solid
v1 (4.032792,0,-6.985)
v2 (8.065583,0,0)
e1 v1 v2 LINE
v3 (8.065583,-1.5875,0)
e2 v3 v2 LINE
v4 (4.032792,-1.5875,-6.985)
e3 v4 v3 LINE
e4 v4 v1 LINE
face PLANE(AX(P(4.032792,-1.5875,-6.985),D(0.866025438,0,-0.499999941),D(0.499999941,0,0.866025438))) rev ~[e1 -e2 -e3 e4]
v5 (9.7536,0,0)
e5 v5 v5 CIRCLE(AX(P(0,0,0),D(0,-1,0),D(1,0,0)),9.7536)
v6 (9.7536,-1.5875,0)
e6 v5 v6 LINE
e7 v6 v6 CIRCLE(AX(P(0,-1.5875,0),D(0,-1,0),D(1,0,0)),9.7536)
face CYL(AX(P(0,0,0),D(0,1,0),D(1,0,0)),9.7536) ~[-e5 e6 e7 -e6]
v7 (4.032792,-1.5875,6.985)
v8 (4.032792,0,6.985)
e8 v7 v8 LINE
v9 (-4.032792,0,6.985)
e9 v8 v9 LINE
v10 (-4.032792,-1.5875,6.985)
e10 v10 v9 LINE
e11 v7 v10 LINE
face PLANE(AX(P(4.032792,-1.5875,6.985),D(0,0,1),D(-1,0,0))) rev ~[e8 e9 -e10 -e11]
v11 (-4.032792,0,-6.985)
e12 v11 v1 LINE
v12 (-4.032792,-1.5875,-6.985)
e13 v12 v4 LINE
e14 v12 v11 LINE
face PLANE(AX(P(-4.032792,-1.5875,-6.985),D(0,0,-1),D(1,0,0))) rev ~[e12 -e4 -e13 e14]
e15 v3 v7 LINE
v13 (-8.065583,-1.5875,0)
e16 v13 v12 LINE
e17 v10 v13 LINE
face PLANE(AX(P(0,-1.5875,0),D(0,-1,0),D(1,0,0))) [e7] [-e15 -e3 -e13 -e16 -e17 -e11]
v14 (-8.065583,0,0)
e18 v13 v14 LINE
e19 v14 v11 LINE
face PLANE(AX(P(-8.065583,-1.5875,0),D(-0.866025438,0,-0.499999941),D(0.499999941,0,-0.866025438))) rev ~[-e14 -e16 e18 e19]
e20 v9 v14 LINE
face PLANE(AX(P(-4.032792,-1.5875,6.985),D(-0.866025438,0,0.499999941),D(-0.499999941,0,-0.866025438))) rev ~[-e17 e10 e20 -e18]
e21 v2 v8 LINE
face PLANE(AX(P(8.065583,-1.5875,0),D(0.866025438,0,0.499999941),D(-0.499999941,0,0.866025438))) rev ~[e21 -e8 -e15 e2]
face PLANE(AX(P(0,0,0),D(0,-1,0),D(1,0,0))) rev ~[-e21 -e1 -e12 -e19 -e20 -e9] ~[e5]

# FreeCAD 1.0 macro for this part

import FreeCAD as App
import Part
import Sketcher
from FreeCAD import Vector
Q = App.Units.Quantity

doc = App.newDocument("Part")
params = doc.addObject("Spreadsheet::Sheet", "Params")
for row, (alias, value) in enumerate([
    ("sketch1_diameter", "0.768 in"),
    ("pad1_length", "0.0625 in"),
], start=1):
    params.set(f"A{row}", alias)
    params.set(f"B{row}", "=" + value)
    params.setAlias(f"B{row}", alias)

body = doc.addObject("PartDesign::Body", "Body")

# Sketch on XZ plane
sketch1 = doc.addObject("Sketcher::SketchObject", "Sketch")
body.addObject(sketch1)
sketch1.AttachmentSupport = (doc.XZ_Plane, [""])
sketch1.MapMode = "FlatFace"
sketch1.addGeometry(Part.Circle(Vector(0, 0, 0), Vector(0, 0, 1), 9.7536), False)
sketch1.addConstraint(Sketcher.Constraint("Coincident", 0, 3, -1, 1))
sketch1.addConstraint(Sketcher.Constraint("Diameter", 0, Q("0.768 in")))
sketch1.setExpression("Constraints[1]", "Params.sketch1_diameter")
pad1 = doc.addObject("PartDesign::Pad", "Pad")
body.addObject(pad1)
pad1.Profile = sketch1
pad1.setExpression("Length", "Params.pad1_length")

# Sketch on XZ plane
sketch2 = doc.addObject("Sketcher::SketchObject", "Sketch001")
body.addObject(sketch2)
sketch2.AttachmentSupport = (doc.XZ_Plane, [""])
sketch2.MapMode = "FlatFace"
sketch2.AttachmentOffset = App.Placement(Vector(0, 0, 0.0625 * 25.4), App.Rotation())
sketch2.addGeometry(Part.LineSegment(Vector(4.032792, -6.985, 0), Vector(8.065583, 0, 0)), False)
sketch2.addGeometry(Part.LineSegment(Vector(8.065583, 0, 0), Vector(4.032792, 6.985, 0)), False)
sketch2.addGeometry(Part.LineSegment(Vector(4.032792, 6.985, 0), Vector(-4.032792, 6.985, 0)), False)
sketch2.addGeometry(Part.LineSegment(Vector(-4.032792, 6.985, 0), Vector(-8.065583, 0, 0)), False)
sketch2.addGeometry(Part.LineSegment(Vector(-8.065583, 0, 0), Vector(-4.032792, -6.985, 0)), False)
sketch2.addGeometry(Part.LineSegment(Vector(-4.032792, -6.985, 0), Vector(4.032792, -6.985, 0)), False)
sketch2.addConstraint(Sketcher.Constraint("Coincident", 0, 2, 1, 1))
sketch2.addConstraint(Sketcher.Constraint("Coincident", 1, 2, 2, 1))
sketch2.addConstraint(Sketcher.Constraint("Coincident", 2, 2, 3, 1))
sketch2.addConstraint(Sketcher.Constraint("Coincident", 3, 2, 4, 1))
sketch2.addConstraint(Sketcher.Constraint("Coincident", 4, 2, 5, 1))
sketch2.addConstraint(Sketcher.Constraint("Coincident", 5, 2, 0, 1))
sketch2.addConstraint(Sketcher.Constraint("Horizontal", 2))
sketch2.addConstraint(Sketcher.Constraint("Horizontal", 5))
sketch2.addConstraint(Sketcher.Constraint("Symmetric", 0, 2, 3, 2, -1, 1))
sketch2.addConstraint(Sketcher.Constraint("Symmetric", 1, 2, 4, 2, -1, 1))
sketch2.addConstraint(Sketcher.Constraint("PointOnObject", 0, 2, -1))
sketch2.addConstraint(Sketcher.Constraint("Parallel", 0, 3))
sketch2.addConstraint(Sketcher.Constraint("Vertical", 2, 2, 4, 2))
sketch2.addConstraint(Sketcher.Constraint("Angle", 0, Q("60.000004 deg")))
sketch2.addConstraint(Sketcher.Constraint("DistanceY", 4, 2, 2, 2, Q("0.55 in")))
sketch2.addConstraint(Sketcher.Constraint("DistanceX", 2, 2, 2, 1, Q("8.065584 mm")))
pocket1 = doc.addObject("PartDesign::Pocket", "Pocket")
body.addObject(pocket1)
pocket1.Profile = sketch2
pocket1.Type = "ThroughAll"

doc.recompute()
